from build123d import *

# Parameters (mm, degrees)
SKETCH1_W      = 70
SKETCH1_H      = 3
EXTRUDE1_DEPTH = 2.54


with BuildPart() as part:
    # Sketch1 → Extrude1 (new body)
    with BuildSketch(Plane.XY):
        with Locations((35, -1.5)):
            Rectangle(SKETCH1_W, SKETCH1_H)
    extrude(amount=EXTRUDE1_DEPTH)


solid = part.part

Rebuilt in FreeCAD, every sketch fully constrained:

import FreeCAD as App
import Part
import Sketcher
from FreeCAD import Vector


def add_polygon(sketch, points):
    """Adds a closed chain of lines whose ends are joined by coincident constraints."""
    first, n = sketch.GeometryCount, len(points)
    for a, b in zip(points, points[1:] + points[:1]):
        sketch.addGeometry(Part.LineSegment(App.Vector(*a, 0), App.Vector(*b, 0)), False)
    for i in range(n):
        sketch.addConstraint(Sketcher.Constraint("Coincident", first + i, 2, first + (i + 1) % n, 1))

doc = App.newDocument("Part")
body = doc.addObject("PartDesign::Body", "Body")

sketch1 = doc.addObject("Sketcher::SketchObject", "Sketch")
body.addObject(sketch1)
sketch1.AttachmentSupport = (doc.XY_Plane, [""])
sketch1.MapMode = "FlatFace"
add_polygon(sketch1, [(0, 0), (0, -3), (70, -3), (70, 0)])
sketch1.addConstraint(Sketcher.Constraint("Vertical", 0))
sketch1.addConstraint(Sketcher.Constraint("Horizontal", 1))
sketch1.addConstraint(Sketcher.Constraint("Vertical", 2))
sketch1.addConstraint(Sketcher.Constraint("Horizontal", 3))
sketch1.addConstraint(Sketcher.Constraint("Coincident", 3, 2, -1, 1))
sketch1.addConstraint(Sketcher.Constraint("DistanceX", 1, 1, 1, 2, 70.0))
sketch1.addConstraint(Sketcher.Constraint("DistanceY", 0, 2, 0, 1, 3.0))
pad1 = doc.addObject("PartDesign::Pad", "Pad")
body.addObject(pad1)
pad1.Profile = sketch1
pad1.Length = 2.54

doc.recompute()
